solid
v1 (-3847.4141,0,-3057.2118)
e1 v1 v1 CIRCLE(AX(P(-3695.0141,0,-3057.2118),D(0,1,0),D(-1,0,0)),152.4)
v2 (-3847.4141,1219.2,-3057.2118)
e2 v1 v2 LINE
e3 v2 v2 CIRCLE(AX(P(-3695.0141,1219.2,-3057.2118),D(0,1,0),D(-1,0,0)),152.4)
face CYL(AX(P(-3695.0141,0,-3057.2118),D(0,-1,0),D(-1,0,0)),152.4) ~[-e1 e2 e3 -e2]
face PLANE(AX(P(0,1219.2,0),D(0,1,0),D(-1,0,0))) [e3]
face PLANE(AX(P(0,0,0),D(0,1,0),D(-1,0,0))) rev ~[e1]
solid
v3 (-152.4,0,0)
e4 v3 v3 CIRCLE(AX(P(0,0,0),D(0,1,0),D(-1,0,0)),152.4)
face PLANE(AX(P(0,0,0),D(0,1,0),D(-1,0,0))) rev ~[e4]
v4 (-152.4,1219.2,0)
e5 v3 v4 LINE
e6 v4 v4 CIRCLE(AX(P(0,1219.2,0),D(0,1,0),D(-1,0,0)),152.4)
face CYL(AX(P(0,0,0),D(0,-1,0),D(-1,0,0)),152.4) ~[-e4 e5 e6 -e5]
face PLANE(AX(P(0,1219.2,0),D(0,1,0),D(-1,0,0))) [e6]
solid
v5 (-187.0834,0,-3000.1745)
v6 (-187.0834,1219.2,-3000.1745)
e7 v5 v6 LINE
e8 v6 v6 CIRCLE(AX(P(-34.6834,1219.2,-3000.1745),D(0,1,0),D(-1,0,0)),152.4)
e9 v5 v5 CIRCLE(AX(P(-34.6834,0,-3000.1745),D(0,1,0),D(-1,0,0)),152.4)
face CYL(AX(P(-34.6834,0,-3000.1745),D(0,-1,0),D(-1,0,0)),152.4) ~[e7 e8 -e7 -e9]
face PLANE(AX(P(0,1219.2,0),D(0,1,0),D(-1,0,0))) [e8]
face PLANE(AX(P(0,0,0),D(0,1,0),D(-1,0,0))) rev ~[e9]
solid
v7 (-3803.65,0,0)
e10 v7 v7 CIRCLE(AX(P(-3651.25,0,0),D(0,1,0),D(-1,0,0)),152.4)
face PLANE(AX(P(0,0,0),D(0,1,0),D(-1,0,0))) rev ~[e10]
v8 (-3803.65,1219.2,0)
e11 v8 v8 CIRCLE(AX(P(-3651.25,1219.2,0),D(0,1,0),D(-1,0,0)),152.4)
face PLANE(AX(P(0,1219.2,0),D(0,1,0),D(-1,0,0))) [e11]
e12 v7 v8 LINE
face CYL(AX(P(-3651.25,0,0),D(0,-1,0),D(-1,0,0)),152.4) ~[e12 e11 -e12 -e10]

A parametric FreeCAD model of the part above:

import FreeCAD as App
import Part
import Sketcher
Q = App.Units.Quantity

doc = App.newDocument("Part")
params = doc.addObject("Spreadsheet::Sheet", "Params")
for row, (alias, value) in enumerate([
    ("sketch1_diameter", "12 in"),
    ("pad1_length", "48 in"),
], start=1):
    params.set(f"A{row}", alias)
    params.set(f"B{row}", "=" + value)
    params.setAlias(f"B{row}", alias)

body = doc.addObject("PartDesign::Body", "Body")
body.AllowCompound = True

sketch1 = body.newObject("Sketcher::SketchObject", "Sketch")
sketch1.AttachmentSupport = (doc.getObject("XZ_Plane"), [""])
sketch1.MapMode = "FlatFace"
sketch1.addGeometry([
    Part.Circle(App.Vector(0, 0, 0), App.Vector(0, 0, 1), 152),
    Part.Circle(App.Vector(-35, -3000, 0), App.Vector(0, 0, 1), 152),
    Part.Circle(App.Vector(-3695, -3057, 0), App.Vector(0, 0, 1), 152),
    Part.Circle(App.Vector(-3651, 0, 0), App.Vector(0, 0, 1), 152),
], False)
sketch1.addConstraint([
    Sketcher.Constraint("Coincident", 0, 3, -1, 1),
    Sketcher.Constraint("Equal", 0, 1),
    Sketcher.Constraint("Equal", 1, 2),
    Sketcher.Constraint("Equal", 2, 3),
    Sketcher.Constraint("PointOnObject", 3, 3, -1),
    Sketcher.Constraint("Diameter", 0, Q("12 in")),
    Sketcher.Constraint("DistanceX", 3, 3, -1, 1, Q("143.75 in")),
    Sketcher.Constraint("DistanceX", 2, 3, -1, 1, Q("145.473 in")),
    Sketcher.Constraint("DistanceX", 1, 3, -1, 1, Q("1.3655 in")),
    Sketcher.Constraint("DistanceY", 1, 3, -1, 1, Q("118.1171 in")),
    Sketcher.Constraint("DistanceY", 2, 3, -1, 1, Q("3057.2118 mm")),
])
sketch1.setExpression("Constraints[5]", "Params.sketch1_diameter")
pad1 = body.newObject("PartDesign::Pad", "Pad")
pad1.Profile = sketch1
pad1.setExpression("Length", "Params.pad1_length")
pad1.Reversed = True

doc.recompute()
